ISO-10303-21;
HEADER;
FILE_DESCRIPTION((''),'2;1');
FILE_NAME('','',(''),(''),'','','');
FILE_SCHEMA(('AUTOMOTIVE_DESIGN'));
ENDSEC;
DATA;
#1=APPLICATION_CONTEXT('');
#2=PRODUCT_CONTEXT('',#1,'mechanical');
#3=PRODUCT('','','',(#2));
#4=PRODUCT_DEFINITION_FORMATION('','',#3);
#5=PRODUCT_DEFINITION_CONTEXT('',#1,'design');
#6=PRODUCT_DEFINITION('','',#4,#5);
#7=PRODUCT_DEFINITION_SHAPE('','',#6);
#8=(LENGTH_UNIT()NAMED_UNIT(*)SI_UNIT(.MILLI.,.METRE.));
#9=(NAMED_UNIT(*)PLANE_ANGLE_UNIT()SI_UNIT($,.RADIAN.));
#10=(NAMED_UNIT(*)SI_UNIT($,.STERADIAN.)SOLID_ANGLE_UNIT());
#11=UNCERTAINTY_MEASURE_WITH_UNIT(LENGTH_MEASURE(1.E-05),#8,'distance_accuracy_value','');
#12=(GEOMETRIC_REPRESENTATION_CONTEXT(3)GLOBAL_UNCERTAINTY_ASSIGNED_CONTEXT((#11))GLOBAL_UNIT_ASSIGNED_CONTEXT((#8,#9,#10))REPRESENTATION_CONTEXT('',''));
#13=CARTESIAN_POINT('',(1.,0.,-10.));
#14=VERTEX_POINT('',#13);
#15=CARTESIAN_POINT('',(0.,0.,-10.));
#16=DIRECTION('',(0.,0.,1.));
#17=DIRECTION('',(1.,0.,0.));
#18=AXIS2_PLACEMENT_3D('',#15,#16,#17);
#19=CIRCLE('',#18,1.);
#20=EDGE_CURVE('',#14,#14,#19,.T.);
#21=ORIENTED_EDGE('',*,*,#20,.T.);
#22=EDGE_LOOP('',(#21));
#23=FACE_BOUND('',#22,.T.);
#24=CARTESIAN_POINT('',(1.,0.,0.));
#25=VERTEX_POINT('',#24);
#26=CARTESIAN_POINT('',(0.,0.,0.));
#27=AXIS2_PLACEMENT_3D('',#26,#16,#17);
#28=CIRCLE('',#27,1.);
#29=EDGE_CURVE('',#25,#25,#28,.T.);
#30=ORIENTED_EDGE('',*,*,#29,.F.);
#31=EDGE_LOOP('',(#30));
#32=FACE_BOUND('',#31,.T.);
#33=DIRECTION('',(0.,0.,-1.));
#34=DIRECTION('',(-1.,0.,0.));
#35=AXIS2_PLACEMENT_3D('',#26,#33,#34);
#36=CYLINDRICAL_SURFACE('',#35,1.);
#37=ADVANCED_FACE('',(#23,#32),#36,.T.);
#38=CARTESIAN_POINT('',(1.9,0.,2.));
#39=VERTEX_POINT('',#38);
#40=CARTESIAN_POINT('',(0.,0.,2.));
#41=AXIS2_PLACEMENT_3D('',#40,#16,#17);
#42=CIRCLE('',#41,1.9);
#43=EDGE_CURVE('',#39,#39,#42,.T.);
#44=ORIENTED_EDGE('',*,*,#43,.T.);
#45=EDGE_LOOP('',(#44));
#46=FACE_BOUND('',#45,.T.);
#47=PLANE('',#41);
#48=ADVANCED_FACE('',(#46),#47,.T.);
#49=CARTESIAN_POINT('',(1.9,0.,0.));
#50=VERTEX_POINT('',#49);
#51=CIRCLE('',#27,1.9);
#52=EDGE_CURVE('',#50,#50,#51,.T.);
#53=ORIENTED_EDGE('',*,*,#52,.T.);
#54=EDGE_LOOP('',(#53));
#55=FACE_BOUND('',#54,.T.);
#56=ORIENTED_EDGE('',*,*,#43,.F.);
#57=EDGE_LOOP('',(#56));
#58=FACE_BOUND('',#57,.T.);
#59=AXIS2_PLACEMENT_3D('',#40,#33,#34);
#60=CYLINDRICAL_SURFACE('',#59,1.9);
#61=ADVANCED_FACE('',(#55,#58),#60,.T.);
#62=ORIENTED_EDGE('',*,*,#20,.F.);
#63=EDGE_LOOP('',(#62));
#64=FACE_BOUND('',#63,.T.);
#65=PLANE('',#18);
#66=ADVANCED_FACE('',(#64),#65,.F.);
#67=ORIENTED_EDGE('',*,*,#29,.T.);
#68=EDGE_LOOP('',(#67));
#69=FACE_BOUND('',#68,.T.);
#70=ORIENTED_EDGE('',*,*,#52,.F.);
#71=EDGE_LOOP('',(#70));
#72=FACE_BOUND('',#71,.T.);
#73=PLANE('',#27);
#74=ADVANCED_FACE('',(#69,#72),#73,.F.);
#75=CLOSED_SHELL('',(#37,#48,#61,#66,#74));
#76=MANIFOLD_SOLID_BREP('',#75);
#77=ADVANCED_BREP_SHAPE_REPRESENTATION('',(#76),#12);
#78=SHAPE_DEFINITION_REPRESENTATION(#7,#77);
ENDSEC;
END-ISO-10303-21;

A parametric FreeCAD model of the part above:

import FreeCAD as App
import Part
import Sketcher

doc = App.newDocument("Part")
params = doc.addObject("Spreadsheet::Sheet", "Params")
for row, (alias, value) in enumerate([
    ("sketch1_diameter", "2 mm"),
    ("pad1_length", "10 mm"),
    ("sketch2_diameter", "3.8 mm"),
    ("pad2_length", "2 mm"),
], start=1):
    params.set(f"A{row}", alias)
    params.set(f"B{row}", "=" + value)
    params.setAlias(f"B{row}", alias)

body = doc.addObject("PartDesign::Body", "Body")

# Sketch on XY plane
sketch1 = doc.addObject("Sketcher::SketchObject", "Sketch")
body.addObject(sketch1)
sketch1.AttachmentSupport = (doc.XY_Plane, [""])
sketch1.MapMode = "FlatFace"
sketch1.AttachmentOffset = App.Placement(App.Vector(0, 0, -10), App.Rotation())
sketch1.addGeometry(Part.Circle(App.Vector(0, 0, 0), App.Vector(0, 0, 1), 1), False)
sketch1.addConstraint(Sketcher.Constraint("Coincident", 0, 3, -1, 1))
sketch1.addConstraint(Sketcher.Constraint("Diameter", 0, 2.0))
sketch1.setExpression("Constraints[1]", "Params.sketch1_diameter")
pad1 = doc.addObject("PartDesign::Pad", "Pad")
body.addObject(pad1)
pad1.Profile = sketch1
pad1.setExpression("Length", "Params.pad1_length")

# Sketch on XY plane
sketch2 = doc.addObject("Sketcher::SketchObject", "Sketch001")
body.addObject(sketch2)
sketch2.AttachmentSupport = (doc.XY_Plane, [""])
sketch2.MapMode = "FlatFace"
sketch2.addGeometry(Part.Circle(App.Vector(0, 0, 0), App.Vector(0, 0, 1), 1.9), False)
sketch2.addConstraint(Sketcher.Constraint("Coincident", 0, 3, -1, 1))
sketch2.addConstraint(Sketcher.Constraint("Diameter", 0, 3.8))
sketch2.setExpression("Constraints[1]", "Params.sketch2_diameter")
pad2 = doc.addObject("PartDesign::Pad", "Pad001")
body.addObject(pad2)
pad2.Profile = sketch2
pad2.setExpression("Length", "Params.pad2_length")

doc.recompute()
